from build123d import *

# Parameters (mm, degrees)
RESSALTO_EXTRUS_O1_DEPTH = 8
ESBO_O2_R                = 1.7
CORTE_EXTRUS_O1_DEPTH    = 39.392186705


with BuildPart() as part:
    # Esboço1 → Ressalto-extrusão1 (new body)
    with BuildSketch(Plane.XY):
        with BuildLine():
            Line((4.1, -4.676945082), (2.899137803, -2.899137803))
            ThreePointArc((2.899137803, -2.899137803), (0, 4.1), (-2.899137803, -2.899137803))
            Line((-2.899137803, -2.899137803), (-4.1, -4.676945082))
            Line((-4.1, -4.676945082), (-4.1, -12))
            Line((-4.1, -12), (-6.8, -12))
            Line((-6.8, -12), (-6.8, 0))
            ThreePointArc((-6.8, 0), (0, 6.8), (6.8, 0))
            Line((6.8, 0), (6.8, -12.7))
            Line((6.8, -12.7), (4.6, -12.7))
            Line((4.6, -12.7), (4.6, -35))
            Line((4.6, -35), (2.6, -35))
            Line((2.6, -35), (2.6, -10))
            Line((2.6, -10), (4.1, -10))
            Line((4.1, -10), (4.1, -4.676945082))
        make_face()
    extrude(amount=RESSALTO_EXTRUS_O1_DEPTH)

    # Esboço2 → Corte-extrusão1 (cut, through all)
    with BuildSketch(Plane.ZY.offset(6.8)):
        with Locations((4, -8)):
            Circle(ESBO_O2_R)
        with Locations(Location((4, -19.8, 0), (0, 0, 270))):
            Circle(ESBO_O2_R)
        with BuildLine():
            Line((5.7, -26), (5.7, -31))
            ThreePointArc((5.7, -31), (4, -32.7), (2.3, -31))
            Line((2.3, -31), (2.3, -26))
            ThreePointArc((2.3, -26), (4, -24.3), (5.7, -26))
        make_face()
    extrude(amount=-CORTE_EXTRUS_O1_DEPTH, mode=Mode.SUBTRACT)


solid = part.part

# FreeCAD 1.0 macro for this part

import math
import FreeCAD as App
import Part
import Sketcher

V = App.Vector

doc = App.newDocument("Part")
body = doc.addObject("PartDesign::Body", "Body")

# Sketch on XY plane
sketch1 = body.newObject("Sketcher::SketchObject", "Sketch")
sketch1.AttachmentSupport = (doc.getObject("XY_Plane"), [""])
sketch1.MapMode = "FlatFace"
sketch1.addGeometry([
    Part.LineSegment(V(2.9, -2.9, 0), V(4.1, -4.7, 0)),  # 0
    Part.LineSegment(V(4.1, -4.7, 0), V(4.1, -10, 0)),  # 1
    Part.LineSegment(V(4.1, -10, 0), V(2.6, -10, 0)),  # 2
    Part.LineSegment(V(2.6, -10, 0), V(2.6, -35, 0)),  # 3
    Part.LineSegment(V(2.6, -35, 0), V(4.6, -35, 0)),  # 4
    Part.LineSegment(V(4.6, -35, 0), V(4.6, -12.7, 0)),  # 5
    Part.LineSegment(V(4.6, -12.7, 0), V(6.8, -12.7, 0)),  # 6
    Part.LineSegment(V(6.8, -12.7, 0), V(6.8, 0, 0)),  # 7
    Part.ArcOfCircle(Part.Circle(V(0, 0, 0), V(0, 0, 1), 6.8), math.radians(0), math.radians(180)),  # 8
    Part.LineSegment(V(-6.8, 0, 0), V(-6.8, -12, 0)),  # 9
    Part.LineSegment(V(-6.8, -12, 0), V(-4.1, -12, 0)),  # 10
    Part.LineSegment(V(-4.1, -12, 0), V(-4.1, -4.7, 0)),  # 11
    Part.LineSegment(V(-4.1, -4.7, 0), V(-2.9, -2.9, 0)),  # 12
    Part.ArcOfCircle(Part.Circle(V(0, 0, 0), V(0, 0, 1), 4.1), math.radians(-45), math.radians(225)),  # 13
], False)
sketch1.addConstraint([
    Sketcher.Constraint("Coincident", 0, 2, 1, 1),
    Sketcher.Constraint("Coincident", 1, 2, 2, 1),
    Sketcher.Constraint("Coincident", 2, 2, 3, 1),
    Sketcher.Constraint("Coincident", 3, 2, 4, 1),
    Sketcher.Constraint("Coincident", 4, 2, 5, 1),
    Sketcher.Constraint("Coincident", 5, 2, 6, 1),
    Sketcher.Constraint("Coincident", 6, 2, 7, 1),
    Sketcher.Constraint("Tangent", 7, 2, 8, 1),
    Sketcher.Constraint("Tangent", 8, 2, 9, 1),
    Sketcher.Constraint("Coincident", 9, 2, 10, 1),
    Sketcher.Constraint("Coincident", 10, 2, 11, 1),
    Sketcher.Constraint("Coincident", 11, 2, 12, 1),
    Sketcher.Constraint("Coincident", 12, 2, 13, 2),
    Sketcher.Constraint("Coincident", 13, 1, 0, 1),
    Sketcher.Constraint("Vertical", 1),
    Sketcher.Constraint("Horizontal", 2),
    Sketcher.Constraint("Vertical", 3),
    Sketcher.Constraint("Horizontal", 4),
    Sketcher.Constraint("Vertical", 5),
    Sketcher.Constraint("Horizontal", 6),
    Sketcher.Constraint("Vertical", 7),
    Sketcher.Constraint("Vertical", 9),
    Sketcher.Constraint("Horizontal", 10),
    Sketcher.Constraint("Vertical", 11),
    Sketcher.Constraint("Coincident", 8, 3, -1, 1),
    Sketcher.Constraint("Coincident", 13, 3, -1, 1),
    Sketcher.Constraint("Symmetric", 0, 2, 11, 2, -2),
    Sketcher.Constraint("Horizontal", 12, 2, 13, 1),
    Sketcher.Constraint("Radius", 8, 6.8),
    Sketcher.Constraint("Radius", 13, 4.1),
    Sketcher.Constraint("DistanceX", 4, 1, 4, 2, 2.0),
    Sketcher.Constraint("DistanceY", 3, 2, 3, 1, 25.0),
    Sketcher.Constraint("DistanceY", 9, 2, 9, 1, 12.0),
    Sketcher.Constraint("DistanceX", 2, 2, 2, 1, 1.5),
    Sketcher.Constraint("DistanceX", 6, 1, 6, 2, 2.2),
    Sketcher.Constraint("DistanceY", 5, 1, 5, 2, 22.3),
    Sketcher.Constraint("DistanceY", 7, 1, 7, 2, 12.7),
    Sketcher.Constraint("DistanceY", 1, 2, 1, 1, 5.323055),
    Sketcher.Constraint("Distance", 0, 2.145383),
])
pad1 = body.newObject("PartDesign::Pad", "Pad")
pad1.Profile = sketch1
pad1.Length = 8

# Sketch on YZ plane
sketch2 = body.newObject("Sketcher::SketchObject", "Sketch001")
sketch2.AttachmentSupport = (doc.getObject("YZ_Plane"), [""])
sketch2.MapMode = "FlatFace"
sketch2.AttachmentOffset = App.Placement(V(0, 0, -6.8), App.Rotation())
sketch2.addGeometry([
    Part.Circle(V(-8, 4, 0), V(0, 0, 1), 1.7),  # 0
    Part.Circle(V(-19.8, 4, 0), V(0, 0, 1), 1.7),  # 1
    Part.LineSegment(V(-31, 5.7, 0), V(-26, 5.7, 0)),  # 2
    Part.ArcOfCircle(Part.Circle(V(-26, 4, 0), V(0, 0, 1), 1.7), math.radians(-90), math.radians(90)),  # 3
    Part.LineSegment(V(-26, 2.3, 0), V(-31, 2.3, 0)),  # 4
    Part.ArcOfCircle(Part.Circle(V(-31, 4, 0), V(0, 0, 1), 1.7), math.radians(90), math.radians(270)),  # 5
], False)
sketch2.addConstraint([
    Sketcher.Constraint("Tangent", 2, 2, 3, 2),
    Sketcher.Constraint("Tangent", 3, 1, 4, 1),
    Sketcher.Constraint("Tangent", 4, 2, 5, 2),
    Sketcher.Constraint("Tangent", 5, 1, 2, 1),
    Sketcher.Constraint("Horizontal", 2),
    Sketcher.Constraint("Horizontal", 4),
    Sketcher.Constraint("Equal", 0, 1),
    Sketcher.Constraint("Equal", 1, 3),
    Sketcher.Constraint("Horizontal", 0, 3, 1, 3),
    Sketcher.Constraint("Horizontal", 1, 3, 3, 3),
    Sketcher.Constraint("Diameter", 0, 3.4),
    Sketcher.Constraint("DistanceX", 2, 1, 2, 2, 5.0),
    Sketcher.Constraint("DistanceX", 0, 3, -1, 1, 8.0),
    Sketcher.Constraint("DistanceY", -1, 1, 0, 3, 4.0),
    Sketcher.Constraint("DistanceX", 3, 3, -1, 1, 26.0),
    Sketcher.Constraint("DistanceX", 1, 3, -1, 1, 19.8),
])
pocket1 = body.newObject("PartDesign::Pocket", "Pocket")
pocket1.Profile = sketch2
pocket1.Type = "ThroughAll"
pocket1.Reversed = True

doc.recompute()
